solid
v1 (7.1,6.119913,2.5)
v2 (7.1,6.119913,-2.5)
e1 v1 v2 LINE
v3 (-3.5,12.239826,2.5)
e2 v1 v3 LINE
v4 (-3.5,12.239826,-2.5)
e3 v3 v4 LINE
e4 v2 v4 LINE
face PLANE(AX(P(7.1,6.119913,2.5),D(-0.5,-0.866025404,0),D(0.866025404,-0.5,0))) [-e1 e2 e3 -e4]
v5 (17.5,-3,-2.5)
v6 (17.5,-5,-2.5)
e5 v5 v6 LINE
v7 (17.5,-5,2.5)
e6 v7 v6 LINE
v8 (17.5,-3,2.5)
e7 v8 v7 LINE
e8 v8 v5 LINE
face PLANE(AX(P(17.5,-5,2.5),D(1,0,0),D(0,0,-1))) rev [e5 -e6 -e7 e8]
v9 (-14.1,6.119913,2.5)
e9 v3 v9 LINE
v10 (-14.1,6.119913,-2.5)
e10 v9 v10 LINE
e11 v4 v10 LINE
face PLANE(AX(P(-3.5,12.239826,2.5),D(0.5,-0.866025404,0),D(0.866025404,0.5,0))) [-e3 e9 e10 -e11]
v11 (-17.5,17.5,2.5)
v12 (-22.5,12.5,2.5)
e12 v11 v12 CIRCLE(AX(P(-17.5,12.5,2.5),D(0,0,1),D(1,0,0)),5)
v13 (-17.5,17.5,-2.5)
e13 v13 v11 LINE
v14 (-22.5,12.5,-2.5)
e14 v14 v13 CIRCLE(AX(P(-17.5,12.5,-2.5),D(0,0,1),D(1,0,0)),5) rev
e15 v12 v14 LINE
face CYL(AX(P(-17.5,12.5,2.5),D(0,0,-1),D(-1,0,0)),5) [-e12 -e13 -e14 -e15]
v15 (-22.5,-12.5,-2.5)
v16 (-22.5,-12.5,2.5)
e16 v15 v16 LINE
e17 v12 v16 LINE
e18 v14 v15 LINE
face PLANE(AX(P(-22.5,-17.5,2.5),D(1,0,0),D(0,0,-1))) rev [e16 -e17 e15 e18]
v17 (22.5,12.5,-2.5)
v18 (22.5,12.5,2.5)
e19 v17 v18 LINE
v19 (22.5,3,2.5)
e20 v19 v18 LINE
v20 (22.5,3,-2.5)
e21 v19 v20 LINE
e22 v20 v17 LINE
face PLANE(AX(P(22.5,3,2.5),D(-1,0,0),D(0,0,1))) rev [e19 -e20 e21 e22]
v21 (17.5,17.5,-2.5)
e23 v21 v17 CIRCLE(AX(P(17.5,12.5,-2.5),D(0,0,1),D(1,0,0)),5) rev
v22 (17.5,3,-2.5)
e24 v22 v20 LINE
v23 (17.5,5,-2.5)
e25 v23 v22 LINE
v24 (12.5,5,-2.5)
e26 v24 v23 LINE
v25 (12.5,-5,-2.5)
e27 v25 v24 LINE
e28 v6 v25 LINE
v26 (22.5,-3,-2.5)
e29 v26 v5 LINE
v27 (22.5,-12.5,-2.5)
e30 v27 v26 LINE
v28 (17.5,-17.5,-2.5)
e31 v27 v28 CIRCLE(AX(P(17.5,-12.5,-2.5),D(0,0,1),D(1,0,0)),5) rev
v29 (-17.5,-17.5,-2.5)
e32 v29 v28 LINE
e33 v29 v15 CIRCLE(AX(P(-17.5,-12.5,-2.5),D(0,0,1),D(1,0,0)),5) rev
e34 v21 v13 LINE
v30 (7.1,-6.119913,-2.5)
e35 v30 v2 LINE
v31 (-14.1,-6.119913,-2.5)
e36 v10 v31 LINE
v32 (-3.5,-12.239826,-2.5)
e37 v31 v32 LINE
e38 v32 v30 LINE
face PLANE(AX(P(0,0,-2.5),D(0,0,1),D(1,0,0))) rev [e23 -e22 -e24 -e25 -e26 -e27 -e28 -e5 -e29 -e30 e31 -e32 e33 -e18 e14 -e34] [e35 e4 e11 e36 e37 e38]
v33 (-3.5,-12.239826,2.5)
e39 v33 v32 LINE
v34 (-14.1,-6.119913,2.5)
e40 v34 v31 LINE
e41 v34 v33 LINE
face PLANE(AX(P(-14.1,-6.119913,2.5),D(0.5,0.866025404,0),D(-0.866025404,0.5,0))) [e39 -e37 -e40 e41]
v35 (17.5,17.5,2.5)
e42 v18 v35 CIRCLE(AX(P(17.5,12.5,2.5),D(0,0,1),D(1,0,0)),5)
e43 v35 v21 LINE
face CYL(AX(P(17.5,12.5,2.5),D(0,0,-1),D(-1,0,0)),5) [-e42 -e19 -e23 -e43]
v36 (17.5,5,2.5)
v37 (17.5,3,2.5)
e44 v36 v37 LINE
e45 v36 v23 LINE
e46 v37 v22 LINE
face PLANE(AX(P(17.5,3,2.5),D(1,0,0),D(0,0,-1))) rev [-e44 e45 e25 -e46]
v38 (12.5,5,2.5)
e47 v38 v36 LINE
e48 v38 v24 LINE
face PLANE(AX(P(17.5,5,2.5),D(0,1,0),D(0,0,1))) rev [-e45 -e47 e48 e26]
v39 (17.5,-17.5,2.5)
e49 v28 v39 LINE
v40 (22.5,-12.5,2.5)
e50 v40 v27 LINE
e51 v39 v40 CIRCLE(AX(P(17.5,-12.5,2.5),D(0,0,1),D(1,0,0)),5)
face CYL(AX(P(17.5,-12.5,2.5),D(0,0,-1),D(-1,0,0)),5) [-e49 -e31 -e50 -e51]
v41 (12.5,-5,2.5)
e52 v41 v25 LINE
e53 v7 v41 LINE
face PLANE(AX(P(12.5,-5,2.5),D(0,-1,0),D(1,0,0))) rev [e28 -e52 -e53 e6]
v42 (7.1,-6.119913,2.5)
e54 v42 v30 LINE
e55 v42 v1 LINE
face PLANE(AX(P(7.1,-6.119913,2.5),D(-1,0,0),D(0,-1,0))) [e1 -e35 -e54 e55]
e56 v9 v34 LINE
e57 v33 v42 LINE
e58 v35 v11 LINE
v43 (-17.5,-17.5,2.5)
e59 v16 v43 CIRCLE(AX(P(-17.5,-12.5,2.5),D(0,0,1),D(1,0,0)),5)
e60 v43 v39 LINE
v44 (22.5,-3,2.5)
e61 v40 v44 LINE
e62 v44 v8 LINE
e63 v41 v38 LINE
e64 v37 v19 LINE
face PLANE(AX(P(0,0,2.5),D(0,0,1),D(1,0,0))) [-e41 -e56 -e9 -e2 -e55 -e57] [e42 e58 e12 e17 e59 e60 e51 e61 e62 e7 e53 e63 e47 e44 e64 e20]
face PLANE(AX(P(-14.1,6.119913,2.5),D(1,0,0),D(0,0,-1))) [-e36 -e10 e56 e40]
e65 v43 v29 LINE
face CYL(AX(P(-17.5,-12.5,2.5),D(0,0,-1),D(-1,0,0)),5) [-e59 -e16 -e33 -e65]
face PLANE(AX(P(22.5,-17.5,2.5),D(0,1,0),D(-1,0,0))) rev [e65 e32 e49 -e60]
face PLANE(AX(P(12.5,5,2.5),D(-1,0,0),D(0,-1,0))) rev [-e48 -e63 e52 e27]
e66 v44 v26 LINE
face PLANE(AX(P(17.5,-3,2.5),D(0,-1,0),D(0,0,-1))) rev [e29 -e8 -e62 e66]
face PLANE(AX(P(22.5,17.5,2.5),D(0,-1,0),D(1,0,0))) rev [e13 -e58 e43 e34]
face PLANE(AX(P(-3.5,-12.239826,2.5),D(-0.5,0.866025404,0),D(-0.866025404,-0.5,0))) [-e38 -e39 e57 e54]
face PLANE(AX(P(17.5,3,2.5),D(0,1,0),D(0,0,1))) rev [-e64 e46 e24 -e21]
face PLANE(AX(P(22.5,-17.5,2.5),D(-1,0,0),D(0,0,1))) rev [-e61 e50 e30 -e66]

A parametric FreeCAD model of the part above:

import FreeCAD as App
import Part
import Sketcher
Q = App.Units.Quantity


def edges_at(feature, points):
    """Names of the edges that pass closest to the given points."""
    edges = feature.Shape.Edges
    near = lambda p: min(range(len(edges)), key=lambda i: edges[i].distToShape(Part.Vertex(*p))[0])
    return sorted({f"Edge{near(p) + 1}" for p in points})


def add_polygon(sketch, points):
    """Adds a closed chain of lines whose ends are joined by coincident constraints."""
    first, n = sketch.GeometryCount, len(points)
    for a, b in zip(points, points[1:] + points[:1]):
        sketch.addGeometry(Part.LineSegment(App.Vector(*a, 0), App.Vector(*b, 0)), False)
    for i in range(n):
        sketch.addConstraint(Sketcher.Constraint("Coincident", first + i, 2, first + (i + 1) % n, 1))

doc = App.newDocument("Part")
body = doc.addObject("PartDesign::Body", "Body")

# Sketch on XY plane
sketch1 = doc.addObject("Sketcher::SketchObject", "Sketch")
body.addObject(sketch1)
sketch1.AttachmentSupport = (doc.XY_Plane, [""])
sketch1.MapMode = "FlatFace"
add_polygon(sketch1, [(22.5, 3), (22.5, 17.5), (-22.5, 17.5), (-22.5, -17.5), (22.5, -17.5), (22.5, -3), (17.5, -3), (17.5, -5), (12.5, -5), (12.5, 5), (17.5, 5), (17.5, 3)])  # lines 0-11
add_polygon(sketch1, [(-3.5, 12.2), (7.1, 6.1), (7.1, -6.1), (-3.5, -12.2), (-14.1, -6.1), (-14.1, 6.1)])  # lines 12-17
sketch1.addConstraint([
    Sketcher.Constraint("Vertical", 0),
    Sketcher.Constraint("Horizontal", 1),
    Sketcher.Constraint("Vertical", 2),
    Sketcher.Constraint("Horizontal", 3),
    Sketcher.Constraint("Vertical", 4),
    Sketcher.Constraint("Horizontal", 5),
    Sketcher.Constraint("Vertical", 6),
    Sketcher.Constraint("Horizontal", 7),
    Sketcher.Constraint("Vertical", 8),
    Sketcher.Constraint("Horizontal", 9),
    Sketcher.Constraint("Vertical", 10),
    Sketcher.Constraint("Horizontal", 11),
    Sketcher.Constraint("Vertical", 13),
    Sketcher.Constraint("Vertical", 16),
    Sketcher.Constraint("Symmetric", 0, 2, 2, 2, -1, 1),
    Sketcher.Constraint("Symmetric", 6, 2, 9, 2, -1),
    Sketcher.Constraint("Symmetric", 4, 2, 11, 2, -1),
    Sketcher.Constraint("Symmetric", 14, 2, 17, 2, -1),
    Sketcher.Constraint("Parallel", 12, 15),
    Sketcher.Constraint("Parallel", 14, 17),
    Sketcher.Constraint("Horizontal", 13, 2, 15, 2),
    Sketcher.Constraint("Horizontal", 12, 2, 16, 2),
    Sketcher.Constraint("Equal", 5, 7),
    Sketcher.Constraint("DistanceX", 1, 2, 1, 1, 45.0),
    Sketcher.Constraint("DistanceX", 5, 2, 5, 1, 5.0),
    Sketcher.Constraint("DistanceY", 2, 2, 2, 1, 35.0),
    Sketcher.Constraint("DistanceY", 6, 2, 6, 1, 2.0),
    Sketcher.Constraint("DistanceY", 8, 1, 8, 2, 10.0),
    Sketcher.Constraint("Angle", 12, Q("-30 deg")),
    Sketcher.Constraint("DistanceX", 14, 2, 7, 2, 16.0),
    Sketcher.Constraint("DistanceX", -1, 1, 12, 2, 7.1),
    Sketcher.Constraint("DistanceY", 13, 2, 13, 1, 12.239826),
])
pad1 = doc.addObject("PartDesign::Pad", "Pad")
body.addObject(pad1)
pad1.Profile = sketch1
pad1.Length = 5
pad1.Midplane = True
doc.recompute()

fillet = doc.addObject("PartDesign::Fillet", "Fillet")
body.addObject(fillet)
fillet.Base = (pad1, edges_at(pad1, [
    (-22.5, 17.5, 0),
    (22.5, 17.5, 0),
    (22.5, -17.5, 0),
    (-22.5, -17.5, 0),
]))
fillet.Radius = 5

doc.recompute()
